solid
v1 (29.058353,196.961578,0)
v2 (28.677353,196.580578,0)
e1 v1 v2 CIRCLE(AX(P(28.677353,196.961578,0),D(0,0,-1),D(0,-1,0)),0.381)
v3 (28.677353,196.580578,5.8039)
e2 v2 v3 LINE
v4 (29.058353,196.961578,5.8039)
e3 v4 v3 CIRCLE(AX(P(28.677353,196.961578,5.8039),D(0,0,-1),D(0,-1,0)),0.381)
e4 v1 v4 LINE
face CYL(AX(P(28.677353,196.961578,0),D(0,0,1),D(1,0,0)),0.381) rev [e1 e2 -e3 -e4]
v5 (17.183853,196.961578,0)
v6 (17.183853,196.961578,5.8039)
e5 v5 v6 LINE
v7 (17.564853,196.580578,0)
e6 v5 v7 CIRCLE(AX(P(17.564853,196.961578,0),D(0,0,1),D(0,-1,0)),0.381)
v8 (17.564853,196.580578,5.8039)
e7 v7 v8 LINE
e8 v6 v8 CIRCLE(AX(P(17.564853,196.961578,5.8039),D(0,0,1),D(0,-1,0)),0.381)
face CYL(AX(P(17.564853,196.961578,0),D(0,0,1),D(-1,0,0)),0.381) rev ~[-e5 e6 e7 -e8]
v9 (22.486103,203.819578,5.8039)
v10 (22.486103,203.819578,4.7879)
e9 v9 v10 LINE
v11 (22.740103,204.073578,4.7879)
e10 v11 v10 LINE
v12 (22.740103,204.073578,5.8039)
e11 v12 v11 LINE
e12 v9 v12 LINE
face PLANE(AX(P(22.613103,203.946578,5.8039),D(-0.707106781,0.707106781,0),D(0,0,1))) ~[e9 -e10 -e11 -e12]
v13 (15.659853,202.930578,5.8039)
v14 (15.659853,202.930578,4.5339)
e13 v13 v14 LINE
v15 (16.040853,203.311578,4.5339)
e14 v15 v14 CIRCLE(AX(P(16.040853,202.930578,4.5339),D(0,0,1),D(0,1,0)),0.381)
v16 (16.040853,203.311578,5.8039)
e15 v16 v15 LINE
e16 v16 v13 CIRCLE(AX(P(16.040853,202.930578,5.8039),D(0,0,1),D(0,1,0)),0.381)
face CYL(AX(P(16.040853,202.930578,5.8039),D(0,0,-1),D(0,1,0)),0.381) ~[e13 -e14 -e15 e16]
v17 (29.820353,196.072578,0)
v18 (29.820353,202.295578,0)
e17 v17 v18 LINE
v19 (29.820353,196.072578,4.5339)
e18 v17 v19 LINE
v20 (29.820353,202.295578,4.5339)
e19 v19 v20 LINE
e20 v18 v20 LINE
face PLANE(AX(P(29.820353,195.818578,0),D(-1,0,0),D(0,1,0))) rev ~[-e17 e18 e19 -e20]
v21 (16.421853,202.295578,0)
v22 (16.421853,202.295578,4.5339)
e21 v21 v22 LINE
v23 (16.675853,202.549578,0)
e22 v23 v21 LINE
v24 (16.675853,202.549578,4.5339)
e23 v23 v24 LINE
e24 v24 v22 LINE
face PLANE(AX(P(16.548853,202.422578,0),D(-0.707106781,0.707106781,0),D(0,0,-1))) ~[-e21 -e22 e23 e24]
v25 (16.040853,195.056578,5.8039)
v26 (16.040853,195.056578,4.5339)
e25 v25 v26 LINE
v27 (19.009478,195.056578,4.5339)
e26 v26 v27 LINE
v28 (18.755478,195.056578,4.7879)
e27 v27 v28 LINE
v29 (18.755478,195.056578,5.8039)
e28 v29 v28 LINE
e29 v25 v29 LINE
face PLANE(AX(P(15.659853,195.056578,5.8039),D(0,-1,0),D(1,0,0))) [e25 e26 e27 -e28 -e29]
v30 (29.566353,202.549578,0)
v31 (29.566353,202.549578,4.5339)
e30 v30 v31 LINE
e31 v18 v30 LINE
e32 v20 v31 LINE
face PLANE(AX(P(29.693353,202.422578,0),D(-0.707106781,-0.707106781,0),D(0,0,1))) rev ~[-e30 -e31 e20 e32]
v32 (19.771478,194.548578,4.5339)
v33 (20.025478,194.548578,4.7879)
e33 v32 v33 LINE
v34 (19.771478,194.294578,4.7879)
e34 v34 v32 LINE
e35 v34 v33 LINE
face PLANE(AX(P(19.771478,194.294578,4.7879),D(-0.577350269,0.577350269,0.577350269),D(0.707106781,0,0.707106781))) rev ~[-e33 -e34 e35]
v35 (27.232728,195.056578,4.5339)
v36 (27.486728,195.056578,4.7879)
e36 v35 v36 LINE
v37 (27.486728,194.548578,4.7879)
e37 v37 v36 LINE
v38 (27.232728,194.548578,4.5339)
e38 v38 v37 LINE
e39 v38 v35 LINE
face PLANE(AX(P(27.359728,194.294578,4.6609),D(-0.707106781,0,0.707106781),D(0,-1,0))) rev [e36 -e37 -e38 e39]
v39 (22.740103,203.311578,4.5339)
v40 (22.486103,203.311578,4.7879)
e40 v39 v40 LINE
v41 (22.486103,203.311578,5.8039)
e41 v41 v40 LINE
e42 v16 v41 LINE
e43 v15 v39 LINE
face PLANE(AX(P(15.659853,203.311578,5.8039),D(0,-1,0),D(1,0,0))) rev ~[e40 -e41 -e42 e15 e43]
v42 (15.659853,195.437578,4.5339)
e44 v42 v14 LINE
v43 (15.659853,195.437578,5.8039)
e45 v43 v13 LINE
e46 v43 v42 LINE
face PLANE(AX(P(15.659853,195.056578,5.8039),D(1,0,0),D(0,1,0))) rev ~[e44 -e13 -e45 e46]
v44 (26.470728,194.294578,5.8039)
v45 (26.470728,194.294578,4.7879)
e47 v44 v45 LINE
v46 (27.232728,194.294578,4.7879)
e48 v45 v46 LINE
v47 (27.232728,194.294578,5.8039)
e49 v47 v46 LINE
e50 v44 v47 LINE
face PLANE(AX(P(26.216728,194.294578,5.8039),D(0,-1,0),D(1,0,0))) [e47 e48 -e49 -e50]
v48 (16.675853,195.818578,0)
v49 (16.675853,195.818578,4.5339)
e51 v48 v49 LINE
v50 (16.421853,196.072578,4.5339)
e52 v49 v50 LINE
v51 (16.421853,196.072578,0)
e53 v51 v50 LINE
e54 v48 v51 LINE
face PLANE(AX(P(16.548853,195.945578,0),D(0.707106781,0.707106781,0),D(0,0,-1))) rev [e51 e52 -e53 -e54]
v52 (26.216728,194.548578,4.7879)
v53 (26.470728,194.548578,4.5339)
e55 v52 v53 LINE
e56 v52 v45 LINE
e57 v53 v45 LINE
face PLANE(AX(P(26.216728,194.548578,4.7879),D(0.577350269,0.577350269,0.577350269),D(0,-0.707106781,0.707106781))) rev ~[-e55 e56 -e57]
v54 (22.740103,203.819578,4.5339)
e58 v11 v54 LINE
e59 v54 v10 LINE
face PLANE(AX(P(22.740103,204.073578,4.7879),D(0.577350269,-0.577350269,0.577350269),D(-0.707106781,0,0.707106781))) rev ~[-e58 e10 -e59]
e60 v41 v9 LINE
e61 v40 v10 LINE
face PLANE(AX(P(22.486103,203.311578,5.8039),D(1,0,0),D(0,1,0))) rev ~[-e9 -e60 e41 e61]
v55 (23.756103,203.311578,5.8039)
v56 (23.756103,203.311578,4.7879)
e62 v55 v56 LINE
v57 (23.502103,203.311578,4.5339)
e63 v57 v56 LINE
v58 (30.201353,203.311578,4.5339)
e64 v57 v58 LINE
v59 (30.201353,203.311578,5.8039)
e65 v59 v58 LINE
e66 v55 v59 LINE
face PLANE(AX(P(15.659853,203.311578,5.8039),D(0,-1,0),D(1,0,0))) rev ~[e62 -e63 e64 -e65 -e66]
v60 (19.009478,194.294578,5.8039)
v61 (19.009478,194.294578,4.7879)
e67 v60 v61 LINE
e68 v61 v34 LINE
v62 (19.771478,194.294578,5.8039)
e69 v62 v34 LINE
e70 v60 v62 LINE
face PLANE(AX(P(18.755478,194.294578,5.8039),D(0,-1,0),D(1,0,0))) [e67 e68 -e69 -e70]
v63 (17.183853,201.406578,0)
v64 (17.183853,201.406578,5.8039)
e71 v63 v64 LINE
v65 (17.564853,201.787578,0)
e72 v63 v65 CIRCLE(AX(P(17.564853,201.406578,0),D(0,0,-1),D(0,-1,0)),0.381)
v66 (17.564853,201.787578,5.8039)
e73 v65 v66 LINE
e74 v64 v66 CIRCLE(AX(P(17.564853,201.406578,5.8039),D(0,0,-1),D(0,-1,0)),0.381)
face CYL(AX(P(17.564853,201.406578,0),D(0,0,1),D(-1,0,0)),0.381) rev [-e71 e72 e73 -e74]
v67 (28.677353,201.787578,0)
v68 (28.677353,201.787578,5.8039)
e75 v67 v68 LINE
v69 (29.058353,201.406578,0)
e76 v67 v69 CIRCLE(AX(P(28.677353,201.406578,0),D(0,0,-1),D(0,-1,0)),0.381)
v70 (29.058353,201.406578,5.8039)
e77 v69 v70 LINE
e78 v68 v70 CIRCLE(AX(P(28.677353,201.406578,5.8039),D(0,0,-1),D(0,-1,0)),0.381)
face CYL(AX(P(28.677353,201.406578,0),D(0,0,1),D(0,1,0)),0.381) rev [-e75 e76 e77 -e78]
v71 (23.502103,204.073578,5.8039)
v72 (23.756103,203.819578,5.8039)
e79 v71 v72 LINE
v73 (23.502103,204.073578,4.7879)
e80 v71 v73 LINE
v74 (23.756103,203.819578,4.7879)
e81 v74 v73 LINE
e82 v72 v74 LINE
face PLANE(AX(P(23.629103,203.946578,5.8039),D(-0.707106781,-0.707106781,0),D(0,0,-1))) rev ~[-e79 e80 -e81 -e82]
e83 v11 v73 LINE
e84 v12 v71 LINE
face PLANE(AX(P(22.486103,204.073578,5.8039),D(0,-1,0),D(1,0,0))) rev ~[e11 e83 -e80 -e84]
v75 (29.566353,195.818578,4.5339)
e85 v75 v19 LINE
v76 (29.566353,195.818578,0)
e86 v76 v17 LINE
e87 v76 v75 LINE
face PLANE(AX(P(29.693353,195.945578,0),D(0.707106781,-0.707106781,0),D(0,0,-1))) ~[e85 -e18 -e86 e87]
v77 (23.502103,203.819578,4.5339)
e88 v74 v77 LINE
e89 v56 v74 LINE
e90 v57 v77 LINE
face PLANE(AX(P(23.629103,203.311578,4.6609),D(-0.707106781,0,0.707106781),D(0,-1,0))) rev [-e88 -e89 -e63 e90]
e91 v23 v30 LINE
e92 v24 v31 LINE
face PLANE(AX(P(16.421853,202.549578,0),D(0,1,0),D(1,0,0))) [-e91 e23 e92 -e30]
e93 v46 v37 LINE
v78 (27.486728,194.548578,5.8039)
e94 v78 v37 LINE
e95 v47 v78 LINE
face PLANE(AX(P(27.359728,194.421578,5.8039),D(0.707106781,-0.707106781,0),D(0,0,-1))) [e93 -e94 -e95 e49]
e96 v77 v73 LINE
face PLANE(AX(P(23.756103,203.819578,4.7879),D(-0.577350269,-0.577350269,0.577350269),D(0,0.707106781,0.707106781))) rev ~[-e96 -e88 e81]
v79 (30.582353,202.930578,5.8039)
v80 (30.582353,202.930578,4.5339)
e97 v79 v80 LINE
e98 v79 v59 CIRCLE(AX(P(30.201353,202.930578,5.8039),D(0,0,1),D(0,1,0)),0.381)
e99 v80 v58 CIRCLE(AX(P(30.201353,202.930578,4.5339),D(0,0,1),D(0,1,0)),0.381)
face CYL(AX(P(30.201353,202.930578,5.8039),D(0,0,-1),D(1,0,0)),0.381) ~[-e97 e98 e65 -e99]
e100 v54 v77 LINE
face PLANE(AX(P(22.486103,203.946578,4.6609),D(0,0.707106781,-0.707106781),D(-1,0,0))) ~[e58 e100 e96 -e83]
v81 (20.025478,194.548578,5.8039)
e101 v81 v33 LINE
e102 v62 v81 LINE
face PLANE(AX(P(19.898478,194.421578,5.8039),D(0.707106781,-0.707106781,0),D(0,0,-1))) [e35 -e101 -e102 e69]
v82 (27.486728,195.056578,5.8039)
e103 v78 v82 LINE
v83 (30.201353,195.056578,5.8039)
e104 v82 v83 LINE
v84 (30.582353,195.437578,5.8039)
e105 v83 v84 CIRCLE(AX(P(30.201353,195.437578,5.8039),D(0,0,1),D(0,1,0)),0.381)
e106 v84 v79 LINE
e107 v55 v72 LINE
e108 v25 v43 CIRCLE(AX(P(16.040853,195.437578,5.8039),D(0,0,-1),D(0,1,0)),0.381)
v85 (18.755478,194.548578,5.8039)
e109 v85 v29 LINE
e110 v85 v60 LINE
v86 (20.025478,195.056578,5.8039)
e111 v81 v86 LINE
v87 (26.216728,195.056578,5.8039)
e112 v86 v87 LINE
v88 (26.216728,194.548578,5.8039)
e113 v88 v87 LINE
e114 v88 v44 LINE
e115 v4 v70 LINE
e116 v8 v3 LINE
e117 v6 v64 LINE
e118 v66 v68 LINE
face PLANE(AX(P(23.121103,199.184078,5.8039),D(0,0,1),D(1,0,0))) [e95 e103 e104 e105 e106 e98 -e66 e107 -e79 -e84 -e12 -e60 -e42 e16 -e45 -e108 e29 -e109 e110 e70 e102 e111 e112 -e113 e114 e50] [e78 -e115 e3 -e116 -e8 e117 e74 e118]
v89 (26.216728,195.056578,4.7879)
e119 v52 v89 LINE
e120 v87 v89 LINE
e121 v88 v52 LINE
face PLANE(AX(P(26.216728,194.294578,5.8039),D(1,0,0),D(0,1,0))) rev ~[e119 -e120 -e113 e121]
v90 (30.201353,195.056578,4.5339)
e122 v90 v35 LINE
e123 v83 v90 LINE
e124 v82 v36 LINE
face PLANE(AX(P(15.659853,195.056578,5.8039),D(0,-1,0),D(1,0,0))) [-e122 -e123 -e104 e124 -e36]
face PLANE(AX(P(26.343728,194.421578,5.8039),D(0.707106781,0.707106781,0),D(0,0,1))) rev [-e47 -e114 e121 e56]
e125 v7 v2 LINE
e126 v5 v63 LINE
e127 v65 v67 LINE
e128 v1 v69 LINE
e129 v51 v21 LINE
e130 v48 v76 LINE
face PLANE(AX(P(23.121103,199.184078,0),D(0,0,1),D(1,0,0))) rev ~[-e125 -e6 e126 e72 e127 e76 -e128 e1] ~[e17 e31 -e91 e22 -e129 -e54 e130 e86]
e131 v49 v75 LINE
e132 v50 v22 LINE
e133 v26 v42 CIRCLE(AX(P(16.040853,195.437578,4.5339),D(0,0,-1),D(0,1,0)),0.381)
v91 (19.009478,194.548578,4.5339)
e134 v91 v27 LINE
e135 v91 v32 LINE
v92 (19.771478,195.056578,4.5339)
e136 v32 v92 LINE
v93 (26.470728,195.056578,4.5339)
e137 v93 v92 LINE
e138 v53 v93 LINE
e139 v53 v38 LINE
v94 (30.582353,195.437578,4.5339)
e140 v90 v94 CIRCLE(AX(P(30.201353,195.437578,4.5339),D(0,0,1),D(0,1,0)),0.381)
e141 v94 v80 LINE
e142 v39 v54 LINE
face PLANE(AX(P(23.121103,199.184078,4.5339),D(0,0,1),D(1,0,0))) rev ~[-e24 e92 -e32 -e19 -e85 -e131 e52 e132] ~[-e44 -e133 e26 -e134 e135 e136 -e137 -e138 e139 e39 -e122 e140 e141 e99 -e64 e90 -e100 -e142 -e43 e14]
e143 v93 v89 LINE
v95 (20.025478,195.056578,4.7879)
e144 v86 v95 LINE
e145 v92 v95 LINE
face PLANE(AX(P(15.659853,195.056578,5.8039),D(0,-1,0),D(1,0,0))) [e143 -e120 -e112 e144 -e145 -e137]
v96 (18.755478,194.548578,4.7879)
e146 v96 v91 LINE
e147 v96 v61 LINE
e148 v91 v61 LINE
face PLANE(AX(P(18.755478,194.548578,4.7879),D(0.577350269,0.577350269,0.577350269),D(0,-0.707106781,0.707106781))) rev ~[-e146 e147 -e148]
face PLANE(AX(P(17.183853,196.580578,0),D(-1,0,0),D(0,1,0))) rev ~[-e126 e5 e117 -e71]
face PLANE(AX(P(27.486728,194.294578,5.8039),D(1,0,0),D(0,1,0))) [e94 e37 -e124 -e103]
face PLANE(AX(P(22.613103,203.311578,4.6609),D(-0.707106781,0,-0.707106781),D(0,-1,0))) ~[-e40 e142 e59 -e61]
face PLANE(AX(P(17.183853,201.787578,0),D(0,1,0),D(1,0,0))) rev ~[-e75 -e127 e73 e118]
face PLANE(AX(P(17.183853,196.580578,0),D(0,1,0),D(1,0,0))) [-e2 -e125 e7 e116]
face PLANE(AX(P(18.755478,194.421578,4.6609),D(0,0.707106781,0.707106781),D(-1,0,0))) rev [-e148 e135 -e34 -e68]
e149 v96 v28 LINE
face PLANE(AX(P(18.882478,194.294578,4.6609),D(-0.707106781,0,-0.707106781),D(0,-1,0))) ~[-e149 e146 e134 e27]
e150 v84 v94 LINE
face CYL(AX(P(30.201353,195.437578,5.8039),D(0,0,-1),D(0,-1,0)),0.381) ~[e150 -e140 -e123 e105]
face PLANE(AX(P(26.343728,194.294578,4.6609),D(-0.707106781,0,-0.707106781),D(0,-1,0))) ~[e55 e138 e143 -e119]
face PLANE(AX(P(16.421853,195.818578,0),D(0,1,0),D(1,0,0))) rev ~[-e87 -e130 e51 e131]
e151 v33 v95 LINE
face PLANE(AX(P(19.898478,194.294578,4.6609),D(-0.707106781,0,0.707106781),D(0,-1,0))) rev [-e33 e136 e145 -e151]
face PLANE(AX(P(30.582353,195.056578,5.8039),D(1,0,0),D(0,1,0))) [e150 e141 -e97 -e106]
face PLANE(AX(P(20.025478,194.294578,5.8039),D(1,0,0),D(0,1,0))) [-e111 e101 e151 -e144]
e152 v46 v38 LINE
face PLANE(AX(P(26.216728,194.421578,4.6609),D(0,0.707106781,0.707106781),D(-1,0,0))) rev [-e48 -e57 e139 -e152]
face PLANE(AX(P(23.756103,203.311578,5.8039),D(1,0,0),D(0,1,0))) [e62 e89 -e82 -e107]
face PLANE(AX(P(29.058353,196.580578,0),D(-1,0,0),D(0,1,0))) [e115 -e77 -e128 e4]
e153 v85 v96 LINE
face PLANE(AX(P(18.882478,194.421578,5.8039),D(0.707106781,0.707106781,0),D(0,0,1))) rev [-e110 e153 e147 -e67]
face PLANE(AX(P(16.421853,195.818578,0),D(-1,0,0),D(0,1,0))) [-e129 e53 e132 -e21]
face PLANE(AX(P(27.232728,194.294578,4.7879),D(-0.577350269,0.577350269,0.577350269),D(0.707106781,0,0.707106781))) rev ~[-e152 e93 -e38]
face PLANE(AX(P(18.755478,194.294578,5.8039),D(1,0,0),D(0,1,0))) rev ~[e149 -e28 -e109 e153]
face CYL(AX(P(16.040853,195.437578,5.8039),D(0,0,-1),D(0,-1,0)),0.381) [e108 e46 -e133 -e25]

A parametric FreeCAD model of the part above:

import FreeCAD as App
import Part
import Sketcher

V = App.Vector
Q = App.Units.Quantity


def edges_at(feature, points):
    """Names of the edges that pass closest to the given points."""
    edges = feature.Shape.Edges
    near = lambda p: min(range(len(edges)), key=lambda i: edges[i].distToShape(Part.Vertex(*p))[0])
    return sorted({f"Edge{near(p) + 1}" for p in points})

doc = App.newDocument("Part")
body = doc.addObject("PartDesign::Body", "Body")

sketch1 = doc.addObject("Sketcher::SketchObject", "Sketch")
body.addObject(sketch1)
sketch1.AttachmentSupport = (doc.XY_Plane, [""])
sketch1.MapMode = "FlatFace"
sketch1.addGeometry([
    Part.LineSegment(V(16, 203, 0), V(16, 196, 0)),
    Part.LineSegment(V(16, 196, 0), V(30, 196, 0)),
    Part.LineSegment(V(30, 196, 0), V(30, 203, 0)),
    Part.LineSegment(V(30, 203, 0), V(16, 203, 0)),
    Part.LineSegment(V(29, 197, 0), V(17, 197, 0)),
    Part.LineSegment(V(17, 197, 0), V(17, 202, 0)),
    Part.LineSegment(V(17, 202, 0), V(29, 202, 0)),
    Part.LineSegment(V(29, 202, 0), V(29, 197, 0)),
], False)
sketch1.addConstraint([
    Sketcher.Constraint("Coincident", 0, 2, 1, 1),
    Sketcher.Constraint("Coincident", 1, 2, 2, 1),
    Sketcher.Constraint("Coincident", 2, 2, 3, 1),
    Sketcher.Constraint("Coincident", 3, 2, 0, 1),
    Sketcher.Constraint("Coincident", 4, 2, 5, 1),
    Sketcher.Constraint("Coincident", 5, 2, 6, 1),
    Sketcher.Constraint("Coincident", 6, 2, 7, 1),
    Sketcher.Constraint("Coincident", 7, 2, 4, 1),
    Sketcher.Constraint("Vertical", 0),
    Sketcher.Constraint("Horizontal", 1),
    Sketcher.Constraint("Vertical", 2),
    Sketcher.Constraint("Horizontal", 3),
    Sketcher.Constraint("Horizontal", 4),
    Sketcher.Constraint("Vertical", 5),
    Sketcher.Constraint("Horizontal", 6),
    Sketcher.Constraint("Vertical", 7),
    Sketcher.Constraint("DistanceY", 0, 2, 0, 1, Q("0.265 in")),
    Sketcher.Constraint("DistanceY", 5, 1, 5, 2, Q("0.205 in")),
    Sketcher.Constraint("DistanceX", 0, 2, 4, 2, Q("0.03 in")),
    Sketcher.Constraint("DistanceY", 0, 2, 4, 2, Q("0.03 in")),
    Sketcher.Constraint("DistanceX", 6, 2, 2, 2, Q("0.03 in")),
    Sketcher.Constraint("DistanceX", 1, 1, 1, 2, Q("0.5275 in")),
    Sketcher.Constraint("DistanceX", -1, 1, 0, 2, 16.421853),
    Sketcher.Constraint("DistanceY", -1, 1, 0, 2, 195.818578),
])
pad1 = doc.addObject("PartDesign::Pad", "Pad")
body.addObject(pad1)
pad1.Profile = sketch1
pad1.Length = Q("0.2285 in")

sketch2 = doc.addObject("Sketcher::SketchObject", "Sketch001")
body.addObject(sketch2)
sketch2.AttachmentSupport = (doc.XY_Plane, [""])
sketch2.MapMode = "FlatFace"
sketch2.AttachmentOffset = App.Placement(V(0, 0, 0.2285 * 25.4), App.Rotation())
sketch2.addGeometry([
    Part.LineSegment(V(16, 203, 0), V(16, 195, 0)),
    Part.LineSegment(V(16, 195, 0), V(31, 195, 0)),
    Part.LineSegment(V(31, 195, 0), V(31, 203, 0)),
    Part.LineSegment(V(31, 203, 0), V(16, 203, 0)),
    Part.LineSegment(V(30, 196, 0), V(16, 196, 0)),
    Part.LineSegment(V(16, 196, 0), V(16, 203, 0)),
    Part.LineSegment(V(16, 203, 0), V(30, 203, 0)),
    Part.LineSegment(V(30, 203, 0), V(30, 196, 0)),
], False)
sketch2.addConstraint([
    Sketcher.Constraint("Coincident", 0, 2, 1, 1),
    Sketcher.Constraint("Coincident", 1, 2, 2, 1),
    Sketcher.Constraint("Coincident", 2, 2, 3, 1),
    Sketcher.Constraint("Coincident", 3, 2, 0, 1),
    Sketcher.Constraint("Coincident", 4, 2, 5, 1),
    Sketcher.Constraint("Coincident", 5, 2, 6, 1),
    Sketcher.Constraint("Coincident", 6, 2, 7, 1),
    Sketcher.Constraint("Coincident", 7, 2, 4, 1),
    Sketcher.Constraint("Vertical", 0),
    Sketcher.Constraint("Horizontal", 1),
    Sketcher.Constraint("Vertical", 2),
    Sketcher.Constraint("Horizontal", 3),
    Sketcher.Constraint("Horizontal", 4),
    Sketcher.Constraint("Vertical", 5),
    Sketcher.Constraint("Horizontal", 6),
    Sketcher.Constraint("Vertical", 7),
    Sketcher.Constraint("DistanceY", 0, 2, 0, 1, Q("0.325 in")),
    Sketcher.Constraint("DistanceY", 5, 1, 5, 2, Q("0.265 in")),
    Sketcher.Constraint("DistanceX", 0, 2, 4, 2, Q("0.03 in")),
    Sketcher.Constraint("DistanceY", 0, 2, 4, 2, Q("0.03 in")),
    Sketcher.Constraint("DistanceX", 6, 2, 2, 2, Q("0.03 in")),
    Sketcher.Constraint("DistanceX", 1, 1, 1, 2, Q("0.5875 in")),
    Sketcher.Constraint("DistanceX", -1, 1, 0, 2, 15.659853),
    Sketcher.Constraint("DistanceY", -1, 1, 0, 2, 195.056578),
])
pad2 = doc.addObject("PartDesign::Pad", "Pad001")
body.addObject(pad2)
pad2.Profile = sketch2
pad2.Length = Q("0.05 in")
pad2.Reversed = True

sketch3 = doc.addObject("Sketcher::SketchObject", "Sketch002")
body.addObject(sketch3)
sketch3.AttachmentSupport = (doc.XY_Plane, [""])
sketch3.MapMode = "FlatFace"
sketch3.AttachmentOffset = App.Placement(V(0, 0, 0.2285 * 25.4), App.Rotation())
sketch3.addGeometry([
    Part.LineSegment(V(22.5, 204.1, 0), V(22.5, 203.3, 0)),
    Part.LineSegment(V(22.5, 203.3, 0), V(23.8, 203.3, 0)),
    Part.LineSegment(V(23.8, 203.3, 0), V(23.8, 204.1, 0)),
    Part.LineSegment(V(23.8, 204.1, 0), V(22.5, 204.1, 0)),
    Part.LineSegment(V(26.2, 195.1, 0), V(26.2, 194.3, 0)),
    Part.LineSegment(V(26.2, 194.3, 0), V(27.5, 194.3, 0)),
    Part.LineSegment(V(27.5, 194.3, 0), V(27.5, 195.1, 0)),
    Part.LineSegment(V(27.5, 195.1, 0), V(26.2, 195.1, 0)),
    Part.LineSegment(V(18.8, 195.1, 0), V(18.8, 194.3, 0)),
    Part.LineSegment(V(18.8, 194.3, 0), V(20, 194.3, 0)),
    Part.LineSegment(V(20, 194.3, 0), V(20, 195.1, 0)),
    Part.LineSegment(V(20, 195.1, 0), V(18.8, 195.1, 0)),
], False)
sketch3.addConstraint([
    Sketcher.Constraint("Coincident", 0, 2, 1, 1),
    Sketcher.Constraint("Coincident", 1, 2, 2, 1),
    Sketcher.Constraint("Coincident", 2, 2, 3, 1),
    Sketcher.Constraint("Coincident", 3, 2, 0, 1),
    Sketcher.Constraint("Coincident", 4, 2, 5, 1),
    Sketcher.Constraint("Coincident", 5, 2, 6, 1),
    Sketcher.Constraint("Coincident", 6, 2, 7, 1),
    Sketcher.Constraint("Coincident", 7, 2, 4, 1),
    Sketcher.Constraint("Coincident", 8, 2, 9, 1),
    Sketcher.Constraint("Coincident", 9, 2, 10, 1),
    Sketcher.Constraint("Coincident", 10, 2, 11, 1),
    Sketcher.Constraint("Coincident", 11, 2, 8, 1),
    Sketcher.Constraint("Vertical", 0),
    Sketcher.Constraint("Horizontal", 1),
    Sketcher.Constraint("Vertical", 2),
    Sketcher.Constraint("Horizontal", 3),
    Sketcher.Constraint("Vertical", 4),
    Sketcher.Constraint("Horizontal", 5),
    Sketcher.Constraint("Vertical", 6),
    Sketcher.Constraint("Horizontal", 7),
    Sketcher.Constraint("Vertical", 8),
    Sketcher.Constraint("Horizontal", 9),
    Sketcher.Constraint("Vertical", 10),
    Sketcher.Constraint("Horizontal", 11),
    Sketcher.Constraint("Horizontal", 5, 2, 8, 2),
    Sketcher.Constraint("Horizontal", 7, 2, 10, 2),
    Sketcher.Constraint("Equal", 3, 5),
    Sketcher.Constraint("Equal", 7, 9),
    Sketcher.Constraint("Equal", 2, 4),
    Sketcher.Constraint("DistanceX", 1, 1, 1, 2, Q("0.05 in")),
    Sketcher.Constraint("DistanceY", 0, 2, 0, 1, Q("0.03 in")),
    Sketcher.Constraint("DistanceY", 4, 2, 1, 2, Q("0.355 in")),
    Sketcher.Constraint("DistanceX", 8, 2, 5, 2, Q("0.34375 in")),
    Sketcher.Constraint("DistanceX", -1, 1, 0, 2, 22.486103),
    Sketcher.Constraint("DistanceY", -1, 1, 0, 2, 203.311578),
    Sketcher.Constraint("DistanceX", -1, 1, 4, 2, 26.216728),
])
pad3 = doc.addObject("PartDesign::Pad", "Pad002")
body.addObject(pad3)
pad3.Profile = sketch3
pad3.Length = Q("0.05 in")
pad3.Reversed = True
doc.recompute()

chamfer = doc.addObject("PartDesign::Chamfer", "Chamfer")
body.addObject(chamfer)
chamfer.Base = (pad3, edges_at(pad3, [
    (16.422, 195.819, 2.267),
    (16.422, 202.55, 2.267),
    (29.82, 202.55, 2.267),
    (29.82, 195.819, 2.267),
    (22.486, 203.693, 4.534),
    (23.121, 204.074, 4.534),
    (22.486, 204.074, 5.169),
    (23.756, 203.693, 4.534),
    (23.756, 204.074, 5.169),
    (27.487, 194.676, 4.534),
    (26.852, 194.295, 4.534),
    (27.487, 194.295, 5.169),
    (26.217, 194.676, 4.534),
    (26.217, 194.295, 5.169),
    (20.025, 194.676, 4.534),
    (19.39, 194.295, 4.534),
    (20.025, 194.295, 5.169),
    (18.755, 194.676, 4.534),
    (18.755, 194.295, 5.169),
]))
chamfer.Size = Q("0.01 in")
doc.recompute()

fillet = doc.addObject("PartDesign::Fillet", "Fillet")
body.addObject(fillet)
fillet.Base = (chamfer, edges_at(chamfer, [
    (15.66, 203.312, 5.169),
    (15.66, 195.057, 5.169),
    (30.582, 195.057, 5.169),
    (30.582, 203.312, 5.169),
    (29.058, 201.788, 2.902),
    (17.184, 201.788, 2.902),
    (29.058, 196.581, 2.902),
    (17.184, 196.581, 2.902),
]))
fillet.Radius = Q("0.015 in")

doc.recompute()
